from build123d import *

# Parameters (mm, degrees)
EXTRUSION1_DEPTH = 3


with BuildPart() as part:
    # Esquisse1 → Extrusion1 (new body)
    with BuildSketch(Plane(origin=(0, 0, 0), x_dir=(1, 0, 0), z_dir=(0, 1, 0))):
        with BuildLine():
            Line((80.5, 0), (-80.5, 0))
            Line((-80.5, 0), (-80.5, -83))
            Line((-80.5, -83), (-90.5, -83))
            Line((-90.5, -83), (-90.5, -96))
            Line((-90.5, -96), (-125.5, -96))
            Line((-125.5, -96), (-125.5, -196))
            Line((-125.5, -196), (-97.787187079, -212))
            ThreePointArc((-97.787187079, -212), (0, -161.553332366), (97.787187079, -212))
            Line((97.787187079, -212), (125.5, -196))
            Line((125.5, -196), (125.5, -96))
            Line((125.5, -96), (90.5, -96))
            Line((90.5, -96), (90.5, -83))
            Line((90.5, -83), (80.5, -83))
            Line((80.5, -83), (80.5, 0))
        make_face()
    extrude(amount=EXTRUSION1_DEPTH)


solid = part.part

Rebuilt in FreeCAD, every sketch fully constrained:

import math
import FreeCAD as App
import Part
import Sketcher
from FreeCAD import Vector
Q = App.Units.Quantity

doc = App.newDocument("Part")
body = doc.addObject("PartDesign::Body", "Body")

# Sketch on XZ plane
sketch1 = doc.addObject("Sketcher::SketchObject", "Sketch")
body.addObject(sketch1)
sketch1.AttachmentSupport = (doc.XZ_Plane, [""])
sketch1.MapMode = "FlatFace"
sketch1.addGeometry(Part.LineSegment(Vector(80, 0, 0), Vector(-80, 0, 0)), False)
sketch1.addGeometry(Part.LineSegment(Vector(-80, 0, 0), Vector(-80, 83, 0)), False)
sketch1.addGeometry(Part.LineSegment(Vector(-80, 83, 0), Vector(-90, 83, 0)), False)
sketch1.addGeometry(Part.LineSegment(Vector(-90, 83, 0), Vector(-90, 96, 0)), False)
sketch1.addGeometry(Part.LineSegment(Vector(-90, 96, 0), Vector(-126, 96, 0)), False)
sketch1.addGeometry(Part.LineSegment(Vector(-126, 96, 0), Vector(-126, 196, 0)), False)
sketch1.addGeometry(Part.LineSegment(Vector(-126, 196, 0), Vector(-98, 212, 0)), False)
sketch1.addGeometry(Part.ArcOfCircle(Part.Circle(Vector(0, 282, 0), Vector(0, 0, 1), 120), math.radians(-145), math.radians(-35)), False)
sketch1.addGeometry(Part.LineSegment(Vector(98, 212, 0), Vector(126, 196, 0)), False)
sketch1.addGeometry(Part.LineSegment(Vector(126, 196, 0), Vector(126, 96, 0)), False)
sketch1.addGeometry(Part.LineSegment(Vector(126, 96, 0), Vector(90, 96, 0)), False)
sketch1.addGeometry(Part.LineSegment(Vector(90, 96, 0), Vector(90, 83, 0)), False)
sketch1.addGeometry(Part.LineSegment(Vector(90, 83, 0), Vector(80, 83, 0)), False)
sketch1.addGeometry(Part.LineSegment(Vector(80, 83, 0), Vector(80, 0, 0)), False)
sketch1.addConstraint(Sketcher.Constraint("Coincident", 0, 2, 1, 1))
sketch1.addConstraint(Sketcher.Constraint("Coincident", 1, 2, 2, 1))
sketch1.addConstraint(Sketcher.Constraint("Coincident", 2, 2, 3, 1))
sketch1.addConstraint(Sketcher.Constraint("Coincident", 3, 2, 4, 1))
sketch1.addConstraint(Sketcher.Constraint("Coincident", 4, 2, 5, 1))
sketch1.addConstraint(Sketcher.Constraint("Coincident", 5, 2, 6, 1))
sketch1.addConstraint(Sketcher.Constraint("Coincident", 6, 2, 7, 1))
sketch1.addConstraint(Sketcher.Constraint("Coincident", 7, 2, 8, 1))
sketch1.addConstraint(Sketcher.Constraint("Coincident", 8, 2, 9, 1))
sketch1.addConstraint(Sketcher.Constraint("Coincident", 9, 2, 10, 1))
sketch1.addConstraint(Sketcher.Constraint("Coincident", 10, 2, 11, 1))
sketch1.addConstraint(Sketcher.Constraint("Coincident", 11, 2, 12, 1))
sketch1.addConstraint(Sketcher.Constraint("Coincident", 12, 2, 13, 1))
sketch1.addConstraint(Sketcher.Constraint("Coincident", 13, 2, 0, 1))
sketch1.addConstraint(Sketcher.Constraint("Horizontal", 0))
sketch1.addConstraint(Sketcher.Constraint("Vertical", 1))
sketch1.addConstraint(Sketcher.Constraint("Horizontal", 2))
sketch1.addConstraint(Sketcher.Constraint("Vertical", 3))
sketch1.addConstraint(Sketcher.Constraint("Horizontal", 4))
sketch1.addConstraint(Sketcher.Constraint("Vertical", 5))
sketch1.addConstraint(Sketcher.Constraint("Vertical", 9))
sketch1.addConstraint(Sketcher.Constraint("Horizontal", 10))
sketch1.addConstraint(Sketcher.Constraint("Vertical", 11))
sketch1.addConstraint(Sketcher.Constraint("Horizontal", 12))
sketch1.addConstraint(Sketcher.Constraint("Vertical", 13))
sketch1.addConstraint(Sketcher.Constraint("Symmetric", 0, 2, 13, 2, -1, 1))
sketch1.addConstraint(Sketcher.Constraint("Symmetric", 6, 2, 7, 2, -2))
sketch1.addConstraint(Sketcher.Constraint("Symmetric", 5, 2, 8, 2, -2))
sketch1.addConstraint(Sketcher.Constraint("Symmetric", 3, 2, 10, 2, -2))
sketch1.addConstraint(Sketcher.Constraint("Horizontal", 2, 2, 11, 2))
sketch1.addConstraint(Sketcher.Constraint("Radius", 7, 120.0))
sketch1.addConstraint(Sketcher.Constraint("DistanceX", 0, 2, 0, 1, 161.0))
sketch1.addConstraint(Sketcher.Constraint("DistanceX", 2, 2, 2, 1, 10.0))
sketch1.addConstraint(Sketcher.Constraint("DistanceX", 4, 2, 4, 1, 35.0))
sketch1.addConstraint(Sketcher.Constraint("DistanceY", 1, 1, 1, 2, 83.0))
sketch1.addConstraint(Sketcher.Constraint("DistanceY", 3, 1, 3, 2, 13.0))
sketch1.addConstraint(Sketcher.Constraint("DistanceY", 5, 1, 5, 2, 100.0))
sketch1.addConstraint(Sketcher.Constraint("Angle", 6, Q("30 deg")))
sketch1.addConstraint(Sketcher.Constraint("Distance", 6, 32.0))
pad1 = doc.addObject("PartDesign::Pad", "Pad")
body.addObject(pad1)
pad1.Profile = sketch1
pad1.Length = 3
pad1.Reversed = True

doc.recompute()
